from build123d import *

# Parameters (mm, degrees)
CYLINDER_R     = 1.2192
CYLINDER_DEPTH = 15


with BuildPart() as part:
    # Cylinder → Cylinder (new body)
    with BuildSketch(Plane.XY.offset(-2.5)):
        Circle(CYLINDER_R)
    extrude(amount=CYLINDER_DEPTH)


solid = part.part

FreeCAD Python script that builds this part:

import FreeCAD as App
import Part
import Sketcher

doc = App.newDocument("Part")
body = doc.addObject("PartDesign::Body", "Body")

sketch1 = body.newObject("Sketcher::SketchObject", "Sketch")
sketch1.AttachmentSupport = (doc.getObject("XY_Plane"), [""])
sketch1.MapMode = "FlatFace"
sketch1.AttachmentOffset = App.Placement(App.Vector(0, 0, -2.5), App.Rotation())
sketch1.addGeometry(Part.Circle(App.Vector(0, 0, 0), App.Vector(0, 0, 1), 1.2), False)
sketch1.addConstraint(Sketcher.Constraint("Coincident", 0, 3, -1, 1))
sketch1.addConstraint(Sketcher.Constraint("Diameter", 0, 2.4384))
pad1 = body.newObject("PartDesign::Pad", "Pad")
pad1.Profile = sketch1
pad1.Length = 15

doc.recompute()
